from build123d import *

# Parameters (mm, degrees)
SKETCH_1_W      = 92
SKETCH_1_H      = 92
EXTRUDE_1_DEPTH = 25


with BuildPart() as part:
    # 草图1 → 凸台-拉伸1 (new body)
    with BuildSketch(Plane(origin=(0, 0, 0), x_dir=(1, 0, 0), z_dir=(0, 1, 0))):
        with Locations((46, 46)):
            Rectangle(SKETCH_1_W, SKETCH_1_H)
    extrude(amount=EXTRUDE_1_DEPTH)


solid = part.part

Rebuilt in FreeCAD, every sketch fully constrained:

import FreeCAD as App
import Part
import Sketcher
Q = App.Units.Quantity

doc = App.newDocument("Part")
body = doc.addObject("PartDesign::Body", "Body")

sketch1 = body.newObject("Sketcher::SketchObject", "Sketch")
sketch1.AttachmentSupport = (doc.getObject("XZ_Plane"), [""])
sketch1.MapMode = "FlatFace"
sketch1.addGeometry([
    Part.LineSegment(App.Vector(0, -92, 0), App.Vector(0, 0, 0)),
    Part.LineSegment(App.Vector(0, 0, 0), App.Vector(92, 0, 0)),
    Part.LineSegment(App.Vector(92, 0, 0), App.Vector(92, -92, 0)),
    Part.LineSegment(App.Vector(92, -92, 0), App.Vector(0, -92, 0)),
], False)
sketch1.addConstraint([
    Sketcher.Constraint("Coincident", 0, 2, 1, 1),
    Sketcher.Constraint("Coincident", 1, 2, 2, 1),
    Sketcher.Constraint("Coincident", 2, 2, 3, 1),
    Sketcher.Constraint("Coincident", 3, 2, 0, 1),
    Sketcher.Constraint("Vertical", 0),
    Sketcher.Constraint("Horizontal", 1),
    Sketcher.Constraint("Vertical", 2),
    Sketcher.Constraint("Horizontal", 3),
    Sketcher.Constraint("Coincident", 0, 2, -1, 1),
    Sketcher.Constraint("Equal", 3, 0),
    Sketcher.Constraint("DistanceX", 1, 1, 1, 2, Q("92 mm")),
])
pad1 = body.newObject("PartDesign::Pad", "Pad")
pad1.Profile = sketch1
pad1.Length = 25
pad1.Reversed = True

doc.recompute()
